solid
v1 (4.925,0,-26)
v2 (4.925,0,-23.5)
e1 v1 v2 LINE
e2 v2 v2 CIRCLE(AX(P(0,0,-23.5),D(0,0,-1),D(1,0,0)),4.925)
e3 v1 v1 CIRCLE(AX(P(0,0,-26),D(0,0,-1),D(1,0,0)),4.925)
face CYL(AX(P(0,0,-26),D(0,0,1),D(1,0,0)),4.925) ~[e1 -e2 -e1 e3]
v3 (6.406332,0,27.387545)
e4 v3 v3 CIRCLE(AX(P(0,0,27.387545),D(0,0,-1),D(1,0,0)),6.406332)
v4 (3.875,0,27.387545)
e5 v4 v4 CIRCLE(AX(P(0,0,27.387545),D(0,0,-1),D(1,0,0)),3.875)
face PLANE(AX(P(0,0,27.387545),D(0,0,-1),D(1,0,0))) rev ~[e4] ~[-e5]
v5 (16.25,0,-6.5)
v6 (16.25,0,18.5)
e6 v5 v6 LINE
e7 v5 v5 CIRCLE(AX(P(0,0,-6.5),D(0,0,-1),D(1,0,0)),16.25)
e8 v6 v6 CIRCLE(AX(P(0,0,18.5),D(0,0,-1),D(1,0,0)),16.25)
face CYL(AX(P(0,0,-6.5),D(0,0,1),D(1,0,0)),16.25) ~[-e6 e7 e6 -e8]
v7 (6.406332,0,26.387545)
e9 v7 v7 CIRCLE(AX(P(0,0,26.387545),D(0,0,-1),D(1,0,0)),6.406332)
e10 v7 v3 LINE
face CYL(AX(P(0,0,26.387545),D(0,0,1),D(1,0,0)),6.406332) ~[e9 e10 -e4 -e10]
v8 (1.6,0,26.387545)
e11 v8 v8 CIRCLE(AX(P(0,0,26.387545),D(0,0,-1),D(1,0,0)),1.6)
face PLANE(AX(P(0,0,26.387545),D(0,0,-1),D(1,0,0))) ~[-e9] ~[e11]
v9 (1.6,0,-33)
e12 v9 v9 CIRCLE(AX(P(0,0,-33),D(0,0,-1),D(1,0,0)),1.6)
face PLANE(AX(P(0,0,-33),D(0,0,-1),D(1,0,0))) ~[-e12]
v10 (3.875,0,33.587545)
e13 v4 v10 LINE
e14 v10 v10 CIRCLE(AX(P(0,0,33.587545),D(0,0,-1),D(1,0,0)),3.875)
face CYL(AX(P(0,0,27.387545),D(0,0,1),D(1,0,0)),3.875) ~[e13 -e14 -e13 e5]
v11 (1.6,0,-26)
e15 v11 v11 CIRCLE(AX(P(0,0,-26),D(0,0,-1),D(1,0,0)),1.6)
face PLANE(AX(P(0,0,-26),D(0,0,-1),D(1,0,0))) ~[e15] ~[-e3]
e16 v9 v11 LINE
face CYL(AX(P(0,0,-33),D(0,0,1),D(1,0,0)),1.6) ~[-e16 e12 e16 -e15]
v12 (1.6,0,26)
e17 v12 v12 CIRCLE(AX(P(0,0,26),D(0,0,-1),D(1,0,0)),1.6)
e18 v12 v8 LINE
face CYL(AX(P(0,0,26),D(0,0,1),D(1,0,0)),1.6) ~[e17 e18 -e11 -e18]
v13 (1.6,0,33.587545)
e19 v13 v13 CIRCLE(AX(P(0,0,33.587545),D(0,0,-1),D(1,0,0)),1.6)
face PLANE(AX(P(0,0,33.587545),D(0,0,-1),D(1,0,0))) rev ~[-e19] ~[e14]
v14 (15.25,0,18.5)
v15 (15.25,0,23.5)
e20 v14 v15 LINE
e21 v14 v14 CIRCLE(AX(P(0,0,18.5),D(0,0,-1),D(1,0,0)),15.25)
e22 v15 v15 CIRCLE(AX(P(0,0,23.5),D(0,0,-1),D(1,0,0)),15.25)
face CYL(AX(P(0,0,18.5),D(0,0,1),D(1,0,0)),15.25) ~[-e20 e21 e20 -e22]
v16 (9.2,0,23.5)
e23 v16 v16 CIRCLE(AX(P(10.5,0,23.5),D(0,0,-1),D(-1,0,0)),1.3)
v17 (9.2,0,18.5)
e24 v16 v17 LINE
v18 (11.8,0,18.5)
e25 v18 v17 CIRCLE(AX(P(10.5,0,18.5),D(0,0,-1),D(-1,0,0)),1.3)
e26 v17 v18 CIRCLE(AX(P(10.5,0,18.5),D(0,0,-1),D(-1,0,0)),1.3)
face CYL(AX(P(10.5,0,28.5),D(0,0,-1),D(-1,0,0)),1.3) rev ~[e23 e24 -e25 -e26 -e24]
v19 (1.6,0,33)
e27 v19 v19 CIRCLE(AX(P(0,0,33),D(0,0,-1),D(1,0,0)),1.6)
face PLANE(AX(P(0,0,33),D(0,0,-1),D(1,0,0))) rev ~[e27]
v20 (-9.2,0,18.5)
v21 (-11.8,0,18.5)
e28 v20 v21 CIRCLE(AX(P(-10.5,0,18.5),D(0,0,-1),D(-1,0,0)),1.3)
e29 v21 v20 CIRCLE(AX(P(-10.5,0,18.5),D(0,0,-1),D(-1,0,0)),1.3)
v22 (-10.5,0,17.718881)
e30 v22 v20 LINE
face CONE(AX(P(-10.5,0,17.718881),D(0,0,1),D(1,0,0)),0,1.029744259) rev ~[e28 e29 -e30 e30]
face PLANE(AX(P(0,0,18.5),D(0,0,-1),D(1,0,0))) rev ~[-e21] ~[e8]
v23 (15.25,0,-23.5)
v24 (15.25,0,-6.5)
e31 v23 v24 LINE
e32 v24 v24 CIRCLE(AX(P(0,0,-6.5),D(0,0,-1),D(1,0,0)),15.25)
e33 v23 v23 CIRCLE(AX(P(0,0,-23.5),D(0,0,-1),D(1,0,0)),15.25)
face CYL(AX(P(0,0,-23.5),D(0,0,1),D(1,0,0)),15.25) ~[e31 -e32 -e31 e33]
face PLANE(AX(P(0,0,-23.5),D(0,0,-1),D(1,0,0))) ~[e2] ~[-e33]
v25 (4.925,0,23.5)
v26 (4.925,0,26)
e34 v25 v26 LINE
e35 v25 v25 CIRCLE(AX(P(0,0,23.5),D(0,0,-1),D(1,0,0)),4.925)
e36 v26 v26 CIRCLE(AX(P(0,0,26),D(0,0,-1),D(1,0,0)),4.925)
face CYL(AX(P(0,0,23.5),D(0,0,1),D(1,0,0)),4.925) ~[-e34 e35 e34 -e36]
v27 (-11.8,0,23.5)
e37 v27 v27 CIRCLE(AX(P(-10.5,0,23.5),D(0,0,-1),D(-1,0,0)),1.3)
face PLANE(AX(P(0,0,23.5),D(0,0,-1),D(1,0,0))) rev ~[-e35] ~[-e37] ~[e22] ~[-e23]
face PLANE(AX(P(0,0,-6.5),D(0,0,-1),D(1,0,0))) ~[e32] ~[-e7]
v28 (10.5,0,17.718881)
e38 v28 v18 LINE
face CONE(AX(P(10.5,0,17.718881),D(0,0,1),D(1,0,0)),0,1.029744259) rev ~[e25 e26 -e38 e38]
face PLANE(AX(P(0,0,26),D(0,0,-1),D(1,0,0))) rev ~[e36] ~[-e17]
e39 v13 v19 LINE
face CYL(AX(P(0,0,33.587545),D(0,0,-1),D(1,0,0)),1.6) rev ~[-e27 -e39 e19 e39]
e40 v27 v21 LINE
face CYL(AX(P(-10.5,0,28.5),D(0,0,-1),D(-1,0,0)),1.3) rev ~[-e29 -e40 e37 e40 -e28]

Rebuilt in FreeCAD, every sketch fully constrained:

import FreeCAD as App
import Part
import Sketcher


def add_polygon(sketch, points):
    """Adds a closed chain of lines whose ends are joined by coincident constraints."""
    first, n = sketch.GeometryCount, len(points)
    for a, b in zip(points, points[1:] + points[:1]):
        sketch.addGeometry(Part.LineSegment(App.Vector(*a, 0), App.Vector(*b, 0)), False)
    for i in range(n):
        sketch.addConstraint(Sketcher.Constraint("Coincident", first + i, 2, first + (i + 1) % n, 1))

doc = App.newDocument("Part")
params = doc.addObject("Spreadsheet::Sheet", "Params")
for row, (alias, value) in enumerate([
    ("sketch1_width", "1 mm"),
    ("sketch1_height", "66 mm"),
    ("sketch1_height2", "7 mm"),
    ("sketch1_height3", "17 mm"),
    ("sketch1_height4", "25 mm"),
    ("revolution_angle", "360 deg"),
    ("sketch2_diameter", "2.6 mm"),
    ("hole_diameter", "2.6 mm"),
    ("hole_depth", "5 mm"),
    ("sketch3_height", "1 mm"),
    ("sketch3_height2", "6.2 mm"),
    ("revolution2_angle", "360 deg"),
], start=1):
    params.set(f"A{row}", alias)
    params.set(f"B{row}", "=" + value)
    params.setAlias(f"B{row}", alias)

body = doc.addObject("PartDesign::Body", "Body")

# Sketch on XZ plane
sketch1 = body.newObject("Sketcher::SketchObject", "Sketch")
sketch1.AttachmentSupport = (doc.getObject("XZ_Plane"), [""])
sketch1.MapMode = "FlatFace"
add_polygon(sketch1, [(1.6, 33), (0, 33), (0, -33), (1.6, -33), (1.6, -26), (4.9, -26), (4.9, -23.5), (15.2, -23.5), (15.2, -6.5), (16.2, -6.5), (16.2, 18.5), (15.2, 18.5), (15.2, 23.5), (4.9, 23.5), (4.9, 26), (1.6, 26)])  # lines 0-15
sketch1.addConstraint(Sketcher.Constraint("Horizontal", 0))
sketch1.addConstraint(Sketcher.Constraint("Vertical", 1))
sketch1.addConstraint(Sketcher.Constraint("Horizontal", 2))
sketch1.addConstraint(Sketcher.Constraint("Vertical", 3))
sketch1.addConstraint(Sketcher.Constraint("Horizontal", 4))
sketch1.addConstraint(Sketcher.Constraint("Vertical", 5))
sketch1.addConstraint(Sketcher.Constraint("Horizontal", 6))
sketch1.addConstraint(Sketcher.Constraint("Vertical", 7))
sketch1.addConstraint(Sketcher.Constraint("Horizontal", 8))
sketch1.addConstraint(Sketcher.Constraint("Vertical", 9))
sketch1.addConstraint(Sketcher.Constraint("Horizontal", 10))
sketch1.addConstraint(Sketcher.Constraint("Vertical", 11))
sketch1.addConstraint(Sketcher.Constraint("Horizontal", 12))
sketch1.addConstraint(Sketcher.Constraint("Vertical", 13))
sketch1.addConstraint(Sketcher.Constraint("Horizontal", 14))
sketch1.addConstraint(Sketcher.Constraint("Vertical", 15))
sketch1.addConstraint(Sketcher.Constraint("Symmetric", 0, 2, 1, 2, -1, 1))
sketch1.addConstraint(Sketcher.Constraint("Symmetric", 6, 2, 11, 2, -1))
sketch1.addConstraint(Sketcher.Constraint("Symmetric", 4, 2, 13, 2, -1))
sketch1.addConstraint(Sketcher.Constraint("Vertical", 3, 2, 14, 2))
sketch1.addConstraint(Sketcher.Constraint("DistanceX", 8, 1, 8, 2, 1.0))
sketch1.addConstraint(Sketcher.Constraint("DistanceY", 1, 2, 1, 1, 66.0))
sketch1.addConstraint(Sketcher.Constraint("DistanceY", 3, 1, 3, 2, 7.0))
sketch1.addConstraint(Sketcher.Constraint("DistanceY", 7, 1, 7, 2, 17.0))
sketch1.addConstraint(Sketcher.Constraint("DistanceY", 9, 1, 9, 2, 25.0))
sketch1.addConstraint(Sketcher.Constraint("DistanceY", 11, 1, 11, 2, 5.0))
sketch1.addConstraint(Sketcher.Constraint("DistanceX", 0, 2, 0, 1, 1.6))
sketch1.addConstraint(Sketcher.Constraint("DistanceX", 4, 1, 4, 2, 3.325))
sketch1.addConstraint(Sketcher.Constraint("DistanceX", 6, 1, 6, 2, 10.325))
sketch1.setExpression("Constraints[36]", "Params.sketch1_width")
sketch1.setExpression("Constraints[37]", "Params.sketch1_height")
sketch1.setExpression("Constraints[38]", "Params.sketch1_height2")
sketch1.setExpression("Constraints[39]", "Params.sketch1_height3")
sketch1.setExpression("Constraints[40]", "Params.sketch1_height4")
revolution = body.newObject("PartDesign::Revolution", "Revolution")
revolution.Profile = sketch1
revolution.ReferenceAxis = (sketch1, ["V_Axis"])
revolution.setExpression("Angle", "Params.revolution_angle")

# Sketch on XY plane
sketch2 = body.newObject("Sketcher::SketchObject", "Sketch001")
sketch2.AttachmentSupport = (doc.getObject("XY_Plane"), [""])
sketch2.MapMode = "FlatFace"
sketch2.AttachmentOffset = App.Placement(App.Vector(0, 0, 23.5), App.Rotation())
sketch2.addGeometry(Part.Circle(App.Vector(-10.5, 0, 0), App.Vector(0, 0, 1), 1.3), False)
sketch2.addGeometry(Part.Circle(App.Vector(10.5, 0, 0), App.Vector(0, 0, 1), 1.3), False)
sketch2.addConstraint(Sketcher.Constraint("Equal", 0, 1))
sketch2.addConstraint(Sketcher.Constraint("Symmetric", 0, 3, 1, 3, -1, 1))
sketch2.addConstraint(Sketcher.Constraint("PointOnObject", 0, 3, -1))
sketch2.addConstraint(Sketcher.Constraint("Diameter", 0, 2.6))
sketch2.addConstraint(Sketcher.Constraint("DistanceX", 0, 3, 1, 3, 21.0))
sketch2.setExpression("Constraints[3]", "Params.sketch2_diameter")
doc.recompute()
hole = body.newObject("PartDesign::Hole", "Hole")
hole.Profile = sketch2
hole.ThreadType = "None"
hole.setExpression("Diameter", "Params.hole_diameter")
hole.DepthType = "Dimension"
hole.setExpression("Depth", "Params.hole_depth")
hole.DrillPoint = "Angled"
hole.DrillPointAngle = 118

# Sketch on XZ plane
sketch3 = body.newObject("Sketcher::SketchObject", "Sketch002")
sketch3.AttachmentSupport = (doc.getObject("XZ_Plane"), [""])
sketch3.MapMode = "FlatFace"
add_polygon(sketch3, [(3.9, 27.4), (3.9, 33.6), (1.6, 33.6), (1.6, 26.4), (6.4, 26.4), (6.4, 27.4)])  # lines 0-5
sketch3.addConstraint(Sketcher.Constraint("Vertical", 0))
sketch3.addConstraint(Sketcher.Constraint("Horizontal", 1))
sketch3.addConstraint(Sketcher.Constraint("Vertical", 2))
sketch3.addConstraint(Sketcher.Constraint("Horizontal", 3))
sketch3.addConstraint(Sketcher.Constraint("Vertical", 4))
sketch3.addConstraint(Sketcher.Constraint("Horizontal", 5))
sketch3.addConstraint(Sketcher.Constraint("DistanceY", 4, 1, 4, 2, 1.0))
sketch3.addConstraint(Sketcher.Constraint("DistanceY", 0, 1, 0, 2, 6.2))
sketch3.addConstraint(Sketcher.Constraint("DistanceX", -1, 1, 1, 2, 1.6))
sketch3.addConstraint(Sketcher.Constraint("DistanceX", 1, 2, 1, 1, 2.275))
sketch3.addConstraint(Sketcher.Constraint("DistanceX", 3, 1, 3, 2, 4.806332))
sketch3.addConstraint(Sketcher.Constraint("DistanceY", -1, 1, 0, 2, 33.587545))
sketch3.setExpression("Constraints[12]", "Params.sketch3_height")
sketch3.setExpression("Constraints[13]", "Params.sketch3_height2")
revolution2 = body.newObject("PartDesign::Revolution", "Revolution001")
revolution2.Profile = sketch3
revolution2.ReferenceAxis = (sketch3, ["V_Axis"])
revolution2.setExpression("Angle", "Params.revolution2_angle")

doc.recompute()
